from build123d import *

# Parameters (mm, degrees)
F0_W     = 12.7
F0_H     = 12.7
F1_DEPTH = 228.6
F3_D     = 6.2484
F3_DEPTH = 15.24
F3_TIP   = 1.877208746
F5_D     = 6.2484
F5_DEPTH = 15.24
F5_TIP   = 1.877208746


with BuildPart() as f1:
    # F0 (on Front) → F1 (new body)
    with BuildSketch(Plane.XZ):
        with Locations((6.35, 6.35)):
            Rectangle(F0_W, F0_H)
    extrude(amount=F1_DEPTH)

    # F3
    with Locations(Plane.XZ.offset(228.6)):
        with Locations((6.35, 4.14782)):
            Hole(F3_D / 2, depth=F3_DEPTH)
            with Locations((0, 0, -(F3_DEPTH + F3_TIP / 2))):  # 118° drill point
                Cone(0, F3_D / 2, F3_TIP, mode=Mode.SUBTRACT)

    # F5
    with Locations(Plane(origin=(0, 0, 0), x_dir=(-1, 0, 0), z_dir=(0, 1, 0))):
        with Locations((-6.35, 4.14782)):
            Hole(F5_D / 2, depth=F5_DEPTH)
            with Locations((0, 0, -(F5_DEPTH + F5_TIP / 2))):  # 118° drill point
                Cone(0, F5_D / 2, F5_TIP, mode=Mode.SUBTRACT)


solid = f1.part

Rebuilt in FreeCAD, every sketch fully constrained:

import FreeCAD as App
import Part
import Sketcher
from FreeCAD import Vector
Q = App.Units.Quantity

doc = App.newDocument("Part")
body = doc.addObject("PartDesign::Body", "Body")

sketch1 = doc.addObject("Sketcher::SketchObject", "Sketch")
body.addObject(sketch1)
sketch1.AttachmentSupport = (doc.XZ_Plane, [""])
sketch1.MapMode = "FlatFace"
sketch1.addGeometry(Part.LineSegment(Vector(0, 13, 0), Vector(0, 0, 0)), False)
sketch1.addGeometry(Part.LineSegment(Vector(0, 0, 0), Vector(13, 0, 0)), False)
sketch1.addGeometry(Part.LineSegment(Vector(13, 0, 0), Vector(13, 13, 0)), False)
sketch1.addGeometry(Part.LineSegment(Vector(13, 13, 0), Vector(0, 13, 0)), False)
sketch1.addConstraint(Sketcher.Constraint("Coincident", 0, 2, 1, 1))
sketch1.addConstraint(Sketcher.Constraint("Coincident", 1, 2, 2, 1))
sketch1.addConstraint(Sketcher.Constraint("Coincident", 2, 2, 3, 1))
sketch1.addConstraint(Sketcher.Constraint("Coincident", 3, 2, 0, 1))
sketch1.addConstraint(Sketcher.Constraint("Vertical", 0))
sketch1.addConstraint(Sketcher.Constraint("Horizontal", 1))
sketch1.addConstraint(Sketcher.Constraint("Vertical", 2))
sketch1.addConstraint(Sketcher.Constraint("Horizontal", 3))
sketch1.addConstraint(Sketcher.Constraint("Coincident", 0, 2, -1, 1))
sketch1.addConstraint(Sketcher.Constraint("Equal", 3, 0))
sketch1.addConstraint(Sketcher.Constraint("DistanceX", 1, 1, 1, 2, Q("0.5 in")))
pad1 = doc.addObject("PartDesign::Pad", "Pad")
body.addObject(pad1)
pad1.Profile = sketch1
pad1.Length = Q("9 in")

sketch2 = doc.addObject("Sketcher::SketchObject", "Sketch001")
body.addObject(sketch2)
sketch2.AttachmentSupport = (doc.XZ_Plane, [""])
sketch2.MapMode = "FlatFace"
sketch2.AttachmentOffset = App.Placement(Vector(0, 0, 9 * 25.4), App.Rotation())
sketch2.addGeometry(Part.Circle(Vector(6.3, 4.1, 0), Vector(0, 0, 1), 3.1), False)
sketch2.addConstraint(Sketcher.Constraint("Diameter", 0, Q("0.246 in")))
sketch2.addConstraint(Sketcher.Constraint("DistanceX", -1, 1, 0, 3, Q("0.25 in")))
sketch2.addConstraint(Sketcher.Constraint("DistanceY", -1, 1, 0, 3, Q("0.1633 in")))
doc.recompute()
hole = doc.addObject("PartDesign::Hole", "Hole")
body.addObject(hole)
hole.Profile = sketch2
hole.ThreadType = "None"
hole.Diameter = Q("0.246 in")
hole.DepthType = "Dimension"
hole.Depth = Q("0.6 in")
hole.DrillPoint = "Angled"
hole.DrillPointAngle = 118

sketch3 = doc.addObject("Sketcher::SketchObject", "Sketch002")
body.addObject(sketch3)
sketch3.AttachmentSupport = (doc.XZ_Plane, [""])
sketch3.MapMode = "FlatFace"
sketch3.addGeometry(Part.Circle(Vector(6.3, 4.1, 0), Vector(0, 0, 1), 3.1), False)
sketch3.addConstraint(Sketcher.Constraint("Diameter", 0, Q("0.246 in")))
sketch3.addConstraint(Sketcher.Constraint("DistanceX", -1, 1, 0, 3, Q("0.25 in")))
sketch3.addConstraint(Sketcher.Constraint("DistanceY", -1, 1, 0, 3, Q("0.1633 in")))
doc.recompute()
hole2 = doc.addObject("PartDesign::Hole", "Hole001")
body.addObject(hole2)
hole2.Profile = sketch3
hole2.ThreadType = "None"
hole2.Diameter = Q("0.246 in")
hole2.DepthType = "Dimension"
hole2.Depth = Q("0.6 in")
hole2.DrillPoint = "Angled"
hole2.DrillPointAngle = 118
hole2.Reversed = True

doc.recompute()
